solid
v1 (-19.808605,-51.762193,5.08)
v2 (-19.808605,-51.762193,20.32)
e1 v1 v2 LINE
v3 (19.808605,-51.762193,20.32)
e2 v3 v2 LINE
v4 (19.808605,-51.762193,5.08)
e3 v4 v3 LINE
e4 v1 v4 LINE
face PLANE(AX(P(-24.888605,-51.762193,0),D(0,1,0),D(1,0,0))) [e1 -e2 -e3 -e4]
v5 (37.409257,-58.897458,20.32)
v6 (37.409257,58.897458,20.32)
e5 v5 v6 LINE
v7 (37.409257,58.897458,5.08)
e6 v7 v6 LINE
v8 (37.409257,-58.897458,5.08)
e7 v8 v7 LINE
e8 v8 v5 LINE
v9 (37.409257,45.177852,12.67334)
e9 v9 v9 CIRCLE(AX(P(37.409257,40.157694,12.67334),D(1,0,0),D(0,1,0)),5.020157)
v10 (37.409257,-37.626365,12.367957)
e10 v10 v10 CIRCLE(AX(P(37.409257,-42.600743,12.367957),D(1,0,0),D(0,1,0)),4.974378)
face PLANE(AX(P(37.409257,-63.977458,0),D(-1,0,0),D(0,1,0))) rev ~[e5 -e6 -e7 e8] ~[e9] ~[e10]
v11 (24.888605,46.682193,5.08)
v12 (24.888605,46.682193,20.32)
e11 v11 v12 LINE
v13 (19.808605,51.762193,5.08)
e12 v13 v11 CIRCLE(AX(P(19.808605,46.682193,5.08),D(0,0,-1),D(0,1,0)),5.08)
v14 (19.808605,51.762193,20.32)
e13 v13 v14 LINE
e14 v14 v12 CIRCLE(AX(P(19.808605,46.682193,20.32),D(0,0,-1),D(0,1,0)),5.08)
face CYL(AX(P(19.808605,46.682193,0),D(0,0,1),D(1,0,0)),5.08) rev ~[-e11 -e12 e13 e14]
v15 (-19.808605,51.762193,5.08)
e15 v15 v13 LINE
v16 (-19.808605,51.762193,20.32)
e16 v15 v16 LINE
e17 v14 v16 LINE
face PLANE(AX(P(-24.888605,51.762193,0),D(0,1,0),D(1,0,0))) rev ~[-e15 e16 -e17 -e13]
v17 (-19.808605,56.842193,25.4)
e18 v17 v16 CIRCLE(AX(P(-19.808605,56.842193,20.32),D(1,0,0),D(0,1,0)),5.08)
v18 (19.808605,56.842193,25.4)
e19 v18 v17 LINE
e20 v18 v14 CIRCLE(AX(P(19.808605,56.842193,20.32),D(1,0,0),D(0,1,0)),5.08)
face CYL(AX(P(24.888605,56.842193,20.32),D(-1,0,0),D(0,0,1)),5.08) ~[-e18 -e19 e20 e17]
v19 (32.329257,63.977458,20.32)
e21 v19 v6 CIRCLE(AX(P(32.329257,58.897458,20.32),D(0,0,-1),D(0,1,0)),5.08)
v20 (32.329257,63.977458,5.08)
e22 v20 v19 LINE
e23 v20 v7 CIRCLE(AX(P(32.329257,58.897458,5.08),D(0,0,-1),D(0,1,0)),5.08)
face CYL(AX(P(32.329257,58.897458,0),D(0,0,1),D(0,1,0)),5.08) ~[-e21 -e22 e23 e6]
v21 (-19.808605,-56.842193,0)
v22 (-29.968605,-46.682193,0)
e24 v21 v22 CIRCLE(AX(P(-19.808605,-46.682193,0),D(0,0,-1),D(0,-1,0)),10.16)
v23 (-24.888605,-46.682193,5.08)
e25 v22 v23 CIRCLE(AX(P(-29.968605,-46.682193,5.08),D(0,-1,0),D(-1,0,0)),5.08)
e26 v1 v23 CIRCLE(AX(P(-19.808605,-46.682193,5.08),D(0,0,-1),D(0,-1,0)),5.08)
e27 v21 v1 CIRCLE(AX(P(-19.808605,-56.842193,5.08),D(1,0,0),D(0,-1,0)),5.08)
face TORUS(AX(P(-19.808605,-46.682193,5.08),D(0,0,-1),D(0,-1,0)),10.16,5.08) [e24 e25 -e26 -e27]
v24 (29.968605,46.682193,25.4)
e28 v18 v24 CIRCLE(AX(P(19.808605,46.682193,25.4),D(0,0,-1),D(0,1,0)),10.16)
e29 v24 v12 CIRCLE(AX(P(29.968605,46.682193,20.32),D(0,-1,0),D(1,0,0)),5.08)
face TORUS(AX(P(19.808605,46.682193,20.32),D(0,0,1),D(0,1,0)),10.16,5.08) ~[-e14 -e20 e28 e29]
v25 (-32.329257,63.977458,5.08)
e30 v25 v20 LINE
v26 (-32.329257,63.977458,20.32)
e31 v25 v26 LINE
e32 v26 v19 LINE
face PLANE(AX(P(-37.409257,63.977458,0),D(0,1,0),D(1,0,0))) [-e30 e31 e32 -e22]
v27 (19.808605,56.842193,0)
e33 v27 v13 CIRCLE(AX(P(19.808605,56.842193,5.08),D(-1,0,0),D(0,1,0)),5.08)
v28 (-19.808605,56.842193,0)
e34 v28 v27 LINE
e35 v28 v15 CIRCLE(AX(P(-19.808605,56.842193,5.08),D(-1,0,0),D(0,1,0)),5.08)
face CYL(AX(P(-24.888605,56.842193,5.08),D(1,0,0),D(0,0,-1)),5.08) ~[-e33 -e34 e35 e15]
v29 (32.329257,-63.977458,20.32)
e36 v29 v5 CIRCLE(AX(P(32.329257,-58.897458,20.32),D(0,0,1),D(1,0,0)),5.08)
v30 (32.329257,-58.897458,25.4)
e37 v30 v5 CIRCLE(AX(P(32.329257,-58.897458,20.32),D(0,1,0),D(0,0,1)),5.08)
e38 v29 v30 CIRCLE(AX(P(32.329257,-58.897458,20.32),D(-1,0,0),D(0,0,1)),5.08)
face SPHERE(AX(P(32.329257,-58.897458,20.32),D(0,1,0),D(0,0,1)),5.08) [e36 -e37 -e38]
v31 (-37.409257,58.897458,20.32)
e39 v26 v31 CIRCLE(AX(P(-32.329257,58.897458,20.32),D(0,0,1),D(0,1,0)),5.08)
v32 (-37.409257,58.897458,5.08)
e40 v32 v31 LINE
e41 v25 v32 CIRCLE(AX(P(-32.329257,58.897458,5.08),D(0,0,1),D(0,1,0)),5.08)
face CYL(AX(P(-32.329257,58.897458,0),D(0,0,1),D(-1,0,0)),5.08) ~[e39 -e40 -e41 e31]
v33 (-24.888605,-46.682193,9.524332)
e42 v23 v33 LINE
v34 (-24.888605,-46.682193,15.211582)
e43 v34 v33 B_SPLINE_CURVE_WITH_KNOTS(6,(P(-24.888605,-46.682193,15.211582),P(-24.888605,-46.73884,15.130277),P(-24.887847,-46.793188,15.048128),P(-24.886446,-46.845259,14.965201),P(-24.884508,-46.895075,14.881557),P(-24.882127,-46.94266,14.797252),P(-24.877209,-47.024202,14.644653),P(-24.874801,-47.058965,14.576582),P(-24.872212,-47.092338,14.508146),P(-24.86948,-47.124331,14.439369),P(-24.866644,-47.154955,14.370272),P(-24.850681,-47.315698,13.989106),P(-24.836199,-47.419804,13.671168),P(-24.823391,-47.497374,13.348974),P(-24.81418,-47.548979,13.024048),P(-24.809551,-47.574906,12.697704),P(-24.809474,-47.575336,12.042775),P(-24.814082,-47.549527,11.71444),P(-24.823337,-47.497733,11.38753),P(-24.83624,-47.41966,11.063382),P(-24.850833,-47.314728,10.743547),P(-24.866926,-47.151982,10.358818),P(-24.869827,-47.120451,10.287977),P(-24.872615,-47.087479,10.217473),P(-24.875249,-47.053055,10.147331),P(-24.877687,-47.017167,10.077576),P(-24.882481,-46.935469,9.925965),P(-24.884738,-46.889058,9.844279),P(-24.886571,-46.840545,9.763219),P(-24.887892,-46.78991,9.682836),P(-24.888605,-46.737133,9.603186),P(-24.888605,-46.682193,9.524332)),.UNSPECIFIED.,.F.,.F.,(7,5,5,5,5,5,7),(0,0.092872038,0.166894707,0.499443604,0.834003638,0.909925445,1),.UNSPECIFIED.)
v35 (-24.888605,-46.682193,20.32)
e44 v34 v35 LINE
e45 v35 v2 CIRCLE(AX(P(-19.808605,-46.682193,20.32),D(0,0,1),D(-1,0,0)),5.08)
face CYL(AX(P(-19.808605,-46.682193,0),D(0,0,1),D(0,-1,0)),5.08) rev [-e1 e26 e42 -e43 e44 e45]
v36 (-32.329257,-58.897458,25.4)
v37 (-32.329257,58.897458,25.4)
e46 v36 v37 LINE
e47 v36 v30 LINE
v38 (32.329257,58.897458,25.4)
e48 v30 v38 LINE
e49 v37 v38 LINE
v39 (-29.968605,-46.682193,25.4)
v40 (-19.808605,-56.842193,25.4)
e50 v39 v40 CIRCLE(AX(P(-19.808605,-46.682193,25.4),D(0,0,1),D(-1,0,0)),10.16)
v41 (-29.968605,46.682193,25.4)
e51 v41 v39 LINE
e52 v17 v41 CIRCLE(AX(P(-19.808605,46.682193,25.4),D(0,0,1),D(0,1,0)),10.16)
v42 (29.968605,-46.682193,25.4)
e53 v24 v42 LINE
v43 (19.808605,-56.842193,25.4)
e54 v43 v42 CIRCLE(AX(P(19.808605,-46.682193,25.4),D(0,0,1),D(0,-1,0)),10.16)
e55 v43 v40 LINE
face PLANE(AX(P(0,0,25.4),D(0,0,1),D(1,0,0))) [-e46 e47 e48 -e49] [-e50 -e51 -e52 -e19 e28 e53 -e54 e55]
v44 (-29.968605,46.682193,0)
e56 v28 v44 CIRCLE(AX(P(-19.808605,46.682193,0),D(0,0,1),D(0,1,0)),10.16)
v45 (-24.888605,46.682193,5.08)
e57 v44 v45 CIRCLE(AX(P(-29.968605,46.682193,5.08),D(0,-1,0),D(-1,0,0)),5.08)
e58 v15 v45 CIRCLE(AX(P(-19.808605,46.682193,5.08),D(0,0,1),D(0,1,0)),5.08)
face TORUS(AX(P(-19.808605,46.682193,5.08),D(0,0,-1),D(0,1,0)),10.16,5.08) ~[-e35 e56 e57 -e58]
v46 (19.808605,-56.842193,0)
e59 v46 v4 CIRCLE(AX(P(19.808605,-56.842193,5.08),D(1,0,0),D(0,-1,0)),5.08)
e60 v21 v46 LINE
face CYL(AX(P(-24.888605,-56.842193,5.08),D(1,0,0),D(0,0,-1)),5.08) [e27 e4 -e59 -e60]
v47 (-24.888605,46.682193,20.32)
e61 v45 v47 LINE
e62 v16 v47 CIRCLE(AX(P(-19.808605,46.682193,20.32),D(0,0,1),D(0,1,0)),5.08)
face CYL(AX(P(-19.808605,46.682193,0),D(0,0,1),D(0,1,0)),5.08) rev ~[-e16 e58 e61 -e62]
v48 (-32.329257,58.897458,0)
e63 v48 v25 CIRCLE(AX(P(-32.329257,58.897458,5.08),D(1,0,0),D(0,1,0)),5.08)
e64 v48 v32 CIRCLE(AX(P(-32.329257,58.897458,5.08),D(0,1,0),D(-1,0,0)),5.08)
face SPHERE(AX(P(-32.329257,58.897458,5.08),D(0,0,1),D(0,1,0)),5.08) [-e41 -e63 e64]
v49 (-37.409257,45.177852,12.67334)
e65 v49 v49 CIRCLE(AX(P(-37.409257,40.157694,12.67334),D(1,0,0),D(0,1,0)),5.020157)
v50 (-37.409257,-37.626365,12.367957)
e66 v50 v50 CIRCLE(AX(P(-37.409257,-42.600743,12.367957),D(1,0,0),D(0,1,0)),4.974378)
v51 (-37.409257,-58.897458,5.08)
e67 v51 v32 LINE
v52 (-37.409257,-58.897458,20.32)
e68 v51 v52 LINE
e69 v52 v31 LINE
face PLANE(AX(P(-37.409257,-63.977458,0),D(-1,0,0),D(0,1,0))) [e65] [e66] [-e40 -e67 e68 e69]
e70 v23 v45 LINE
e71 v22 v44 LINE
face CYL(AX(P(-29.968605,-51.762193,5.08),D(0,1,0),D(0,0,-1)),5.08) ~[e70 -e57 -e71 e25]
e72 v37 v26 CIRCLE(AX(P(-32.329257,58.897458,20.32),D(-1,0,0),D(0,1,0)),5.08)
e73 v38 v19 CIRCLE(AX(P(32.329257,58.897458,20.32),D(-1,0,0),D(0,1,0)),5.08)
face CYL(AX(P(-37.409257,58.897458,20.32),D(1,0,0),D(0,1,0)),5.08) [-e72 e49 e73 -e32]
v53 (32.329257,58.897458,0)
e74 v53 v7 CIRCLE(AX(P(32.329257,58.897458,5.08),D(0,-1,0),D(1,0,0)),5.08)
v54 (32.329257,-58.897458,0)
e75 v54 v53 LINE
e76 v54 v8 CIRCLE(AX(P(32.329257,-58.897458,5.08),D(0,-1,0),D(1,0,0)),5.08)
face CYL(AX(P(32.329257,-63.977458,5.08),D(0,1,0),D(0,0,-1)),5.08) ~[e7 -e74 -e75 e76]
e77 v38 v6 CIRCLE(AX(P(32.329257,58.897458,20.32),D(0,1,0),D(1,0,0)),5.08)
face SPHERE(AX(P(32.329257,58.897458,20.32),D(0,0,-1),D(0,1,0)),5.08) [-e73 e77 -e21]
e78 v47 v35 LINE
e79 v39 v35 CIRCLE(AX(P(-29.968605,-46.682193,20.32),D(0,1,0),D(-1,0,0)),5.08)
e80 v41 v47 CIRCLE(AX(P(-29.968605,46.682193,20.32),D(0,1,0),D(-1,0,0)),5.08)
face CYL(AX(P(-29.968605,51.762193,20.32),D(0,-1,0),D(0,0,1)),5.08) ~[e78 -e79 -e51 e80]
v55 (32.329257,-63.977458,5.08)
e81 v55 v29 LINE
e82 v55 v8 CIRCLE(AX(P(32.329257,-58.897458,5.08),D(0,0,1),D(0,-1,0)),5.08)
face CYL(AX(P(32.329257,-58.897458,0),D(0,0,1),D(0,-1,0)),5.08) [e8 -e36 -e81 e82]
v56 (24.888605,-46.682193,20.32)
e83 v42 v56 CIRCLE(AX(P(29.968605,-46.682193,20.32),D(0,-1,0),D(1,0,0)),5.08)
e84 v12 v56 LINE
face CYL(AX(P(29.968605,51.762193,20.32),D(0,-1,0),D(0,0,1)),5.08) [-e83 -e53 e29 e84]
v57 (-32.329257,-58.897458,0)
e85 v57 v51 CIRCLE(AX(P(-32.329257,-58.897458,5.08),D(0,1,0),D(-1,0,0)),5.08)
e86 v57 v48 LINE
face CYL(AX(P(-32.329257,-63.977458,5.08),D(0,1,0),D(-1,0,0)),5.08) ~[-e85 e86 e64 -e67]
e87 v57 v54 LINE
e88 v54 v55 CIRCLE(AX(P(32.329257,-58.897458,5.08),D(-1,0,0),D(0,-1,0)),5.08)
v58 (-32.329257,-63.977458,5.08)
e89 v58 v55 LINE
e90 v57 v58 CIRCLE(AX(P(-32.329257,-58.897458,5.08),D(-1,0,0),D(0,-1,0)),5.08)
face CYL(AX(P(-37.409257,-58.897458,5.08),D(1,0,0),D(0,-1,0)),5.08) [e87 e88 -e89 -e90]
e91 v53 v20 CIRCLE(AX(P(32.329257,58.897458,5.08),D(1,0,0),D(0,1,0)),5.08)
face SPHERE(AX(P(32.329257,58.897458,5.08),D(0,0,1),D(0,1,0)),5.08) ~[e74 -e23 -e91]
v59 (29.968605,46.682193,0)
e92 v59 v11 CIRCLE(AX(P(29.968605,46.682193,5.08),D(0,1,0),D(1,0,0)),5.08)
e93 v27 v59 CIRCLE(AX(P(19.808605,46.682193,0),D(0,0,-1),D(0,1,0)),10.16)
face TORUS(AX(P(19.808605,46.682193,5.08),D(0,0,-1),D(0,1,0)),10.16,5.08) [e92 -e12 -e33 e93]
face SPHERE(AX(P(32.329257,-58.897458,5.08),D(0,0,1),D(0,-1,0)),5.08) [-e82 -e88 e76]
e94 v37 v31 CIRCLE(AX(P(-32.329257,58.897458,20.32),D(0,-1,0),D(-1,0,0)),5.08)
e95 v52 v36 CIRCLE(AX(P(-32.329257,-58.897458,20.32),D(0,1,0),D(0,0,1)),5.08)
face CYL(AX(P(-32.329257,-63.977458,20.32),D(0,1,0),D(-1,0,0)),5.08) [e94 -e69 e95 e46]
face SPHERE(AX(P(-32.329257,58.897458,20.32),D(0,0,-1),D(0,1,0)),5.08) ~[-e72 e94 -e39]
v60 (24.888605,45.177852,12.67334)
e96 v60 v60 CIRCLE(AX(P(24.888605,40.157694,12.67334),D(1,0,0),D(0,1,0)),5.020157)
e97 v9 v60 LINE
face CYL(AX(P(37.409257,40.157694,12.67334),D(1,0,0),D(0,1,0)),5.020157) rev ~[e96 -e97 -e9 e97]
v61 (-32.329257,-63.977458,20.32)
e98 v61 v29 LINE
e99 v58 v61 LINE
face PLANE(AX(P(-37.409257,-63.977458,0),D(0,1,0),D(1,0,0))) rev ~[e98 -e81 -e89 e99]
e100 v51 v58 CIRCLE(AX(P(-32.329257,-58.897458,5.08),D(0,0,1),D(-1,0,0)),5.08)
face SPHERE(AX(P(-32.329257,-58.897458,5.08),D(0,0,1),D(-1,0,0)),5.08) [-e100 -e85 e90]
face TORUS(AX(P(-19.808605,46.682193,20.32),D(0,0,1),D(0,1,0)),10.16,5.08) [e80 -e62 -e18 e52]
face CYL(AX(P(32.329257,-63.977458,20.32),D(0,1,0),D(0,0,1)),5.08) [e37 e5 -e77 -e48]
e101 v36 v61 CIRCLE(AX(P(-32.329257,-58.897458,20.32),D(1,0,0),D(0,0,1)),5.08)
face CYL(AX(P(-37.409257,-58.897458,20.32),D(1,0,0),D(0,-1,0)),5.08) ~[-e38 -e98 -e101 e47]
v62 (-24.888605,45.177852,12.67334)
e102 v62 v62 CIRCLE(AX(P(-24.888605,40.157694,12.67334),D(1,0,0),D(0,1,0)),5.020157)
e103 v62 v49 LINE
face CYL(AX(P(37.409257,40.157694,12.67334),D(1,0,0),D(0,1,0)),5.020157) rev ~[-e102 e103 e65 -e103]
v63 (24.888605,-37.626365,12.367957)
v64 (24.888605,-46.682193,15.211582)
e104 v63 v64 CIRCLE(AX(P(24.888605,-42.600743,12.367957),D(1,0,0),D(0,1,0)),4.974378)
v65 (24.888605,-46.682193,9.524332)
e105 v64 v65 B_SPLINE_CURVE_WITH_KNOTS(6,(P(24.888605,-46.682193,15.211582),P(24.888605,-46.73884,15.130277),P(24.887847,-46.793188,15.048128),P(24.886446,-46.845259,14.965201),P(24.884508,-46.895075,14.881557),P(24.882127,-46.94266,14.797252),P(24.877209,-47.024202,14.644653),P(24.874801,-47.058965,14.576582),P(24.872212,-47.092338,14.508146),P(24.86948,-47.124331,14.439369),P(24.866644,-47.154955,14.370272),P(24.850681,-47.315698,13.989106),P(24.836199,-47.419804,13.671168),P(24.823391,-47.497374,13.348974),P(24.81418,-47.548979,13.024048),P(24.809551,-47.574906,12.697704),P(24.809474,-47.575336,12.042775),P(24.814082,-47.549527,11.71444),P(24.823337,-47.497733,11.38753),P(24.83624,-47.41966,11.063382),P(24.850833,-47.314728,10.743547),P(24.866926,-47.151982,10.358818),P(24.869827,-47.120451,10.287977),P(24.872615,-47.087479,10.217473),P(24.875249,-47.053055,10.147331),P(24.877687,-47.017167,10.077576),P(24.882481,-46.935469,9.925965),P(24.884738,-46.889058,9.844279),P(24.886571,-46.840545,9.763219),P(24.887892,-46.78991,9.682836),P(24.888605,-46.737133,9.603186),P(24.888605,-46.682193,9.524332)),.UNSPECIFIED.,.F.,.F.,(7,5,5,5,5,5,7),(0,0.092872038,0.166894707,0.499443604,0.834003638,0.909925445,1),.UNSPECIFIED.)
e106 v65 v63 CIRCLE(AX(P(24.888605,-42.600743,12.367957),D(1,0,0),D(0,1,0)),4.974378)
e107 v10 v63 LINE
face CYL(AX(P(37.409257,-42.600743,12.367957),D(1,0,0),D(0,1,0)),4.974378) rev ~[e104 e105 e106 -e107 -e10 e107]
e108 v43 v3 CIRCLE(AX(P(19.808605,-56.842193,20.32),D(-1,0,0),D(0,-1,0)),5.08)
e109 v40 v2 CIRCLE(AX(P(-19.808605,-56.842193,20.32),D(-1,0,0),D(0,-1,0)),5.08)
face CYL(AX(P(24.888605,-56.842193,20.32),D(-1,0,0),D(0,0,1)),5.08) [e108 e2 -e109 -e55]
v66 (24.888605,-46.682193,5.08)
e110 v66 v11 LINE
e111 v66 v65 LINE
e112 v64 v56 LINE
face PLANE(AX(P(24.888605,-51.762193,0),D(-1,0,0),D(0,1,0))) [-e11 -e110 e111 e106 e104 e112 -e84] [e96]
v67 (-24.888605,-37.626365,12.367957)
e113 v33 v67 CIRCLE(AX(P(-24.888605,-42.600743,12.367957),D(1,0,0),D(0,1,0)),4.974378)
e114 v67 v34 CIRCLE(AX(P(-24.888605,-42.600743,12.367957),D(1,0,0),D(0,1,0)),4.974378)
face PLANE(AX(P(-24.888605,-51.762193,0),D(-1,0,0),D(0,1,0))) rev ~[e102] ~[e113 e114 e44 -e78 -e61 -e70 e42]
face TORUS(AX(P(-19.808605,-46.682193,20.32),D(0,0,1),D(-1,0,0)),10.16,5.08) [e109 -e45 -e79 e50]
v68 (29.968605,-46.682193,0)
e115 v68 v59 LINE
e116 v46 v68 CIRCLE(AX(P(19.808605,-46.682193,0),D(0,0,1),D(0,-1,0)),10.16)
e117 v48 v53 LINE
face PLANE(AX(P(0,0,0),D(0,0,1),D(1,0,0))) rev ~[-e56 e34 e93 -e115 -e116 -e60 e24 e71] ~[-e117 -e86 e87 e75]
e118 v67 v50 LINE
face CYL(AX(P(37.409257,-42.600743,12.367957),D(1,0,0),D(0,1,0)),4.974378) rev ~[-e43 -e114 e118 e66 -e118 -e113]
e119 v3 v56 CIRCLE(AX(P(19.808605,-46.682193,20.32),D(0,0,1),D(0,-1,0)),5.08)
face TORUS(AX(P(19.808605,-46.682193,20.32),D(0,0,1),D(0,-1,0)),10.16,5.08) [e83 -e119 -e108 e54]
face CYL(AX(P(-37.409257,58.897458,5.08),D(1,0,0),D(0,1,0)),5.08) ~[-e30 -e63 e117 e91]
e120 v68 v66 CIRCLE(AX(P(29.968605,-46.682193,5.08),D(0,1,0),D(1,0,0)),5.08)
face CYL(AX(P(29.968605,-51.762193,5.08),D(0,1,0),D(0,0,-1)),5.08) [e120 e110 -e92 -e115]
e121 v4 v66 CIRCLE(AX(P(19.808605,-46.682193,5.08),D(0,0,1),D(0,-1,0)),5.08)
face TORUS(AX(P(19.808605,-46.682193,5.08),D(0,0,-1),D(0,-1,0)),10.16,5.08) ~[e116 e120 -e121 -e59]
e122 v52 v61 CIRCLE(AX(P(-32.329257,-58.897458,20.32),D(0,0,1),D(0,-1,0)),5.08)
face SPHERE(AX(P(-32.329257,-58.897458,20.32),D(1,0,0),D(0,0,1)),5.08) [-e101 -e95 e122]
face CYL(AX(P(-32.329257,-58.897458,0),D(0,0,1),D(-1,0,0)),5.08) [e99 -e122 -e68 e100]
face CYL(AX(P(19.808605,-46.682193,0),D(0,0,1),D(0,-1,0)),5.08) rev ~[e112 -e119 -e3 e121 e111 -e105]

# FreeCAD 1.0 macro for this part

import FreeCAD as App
import Part
import Sketcher

V = App.Vector
Q = App.Units.Quantity


def add_polygon(sketch, points):
    """Adds a closed chain of lines whose ends are joined by coincident constraints."""
    first, n = sketch.GeometryCount, len(points)
    for a, b in zip(points, points[1:] + points[:1]):
        sketch.addGeometry(Part.LineSegment(App.Vector(*a, 0), App.Vector(*b, 0)), False)
    for i in range(n):
        sketch.addConstraint(Sketcher.Constraint("Coincident", first + i, 2, first + (i + 1) % n, 1))

doc = App.newDocument("Part")
body = doc.addObject("PartDesign::Body", "Body")

sketch1 = body.newObject("Sketcher::SketchObject", "Sketch")
sketch1.AttachmentSupport = (doc.getObject("XY_Plane"), [""])
sketch1.MapMode = "FlatFace"
add_polygon(sketch1, [(-37, 64), (-37, -64), (37, -64), (37, 64)])
sketch1.addConstraint([
    Sketcher.Constraint("Vertical", 0),
    Sketcher.Constraint("Horizontal", 1),
    Sketcher.Constraint("Vertical", 2),
    Sketcher.Constraint("Horizontal", 3),
    Sketcher.Constraint("Symmetric", 0, 2, 2, 2, -1, 1),
    Sketcher.Constraint("DistanceX", 1, 1, 1, 2, 74.818514),
    Sketcher.Constraint("DistanceY", 0, 2, 0, 1, 127.954915),
])
pad1 = body.newObject("PartDesign::Pad", "Pad")
pad1.Profile = sketch1
pad1.Length = Q("1 in")

sketch2 = body.newObject("Sketcher::SketchObject", "Sketch001")
sketch2.AttachmentSupport = (doc.getObject("XY_Plane"), [""])
sketch2.MapMode = "FlatFace"
add_polygon(sketch2, [(-25, 52), (-25, -52), (25, -52), (25, 52)])
sketch2.addConstraint([
    Sketcher.Constraint("Vertical", 0),
    Sketcher.Constraint("Horizontal", 1),
    Sketcher.Constraint("Vertical", 2),
    Sketcher.Constraint("Horizontal", 3),
    Sketcher.Constraint("Symmetric", 0, 2, 2, 2, -1, 1),
    Sketcher.Constraint("DistanceX", 1, 1, 1, 2, 49.77721),
    Sketcher.Constraint("DistanceY", 0, 2, 0, 1, 103.524387),
])
pocket1 = body.newObject("PartDesign::Pocket", "Pocket")
pocket1.Profile = sketch2
pocket1.Length = Q("1.5 in")
pocket1.Reversed = True
doc.recompute()

fillet = body.newObject("PartDesign::Fillet", "Fillet")
fillet.Base = (pocket1, ["Edge1"])
fillet.UseAllEdges = True
fillet.Radius = Q("0.2 in")

sketch3 = body.newObject("Sketcher::SketchObject", "Sketch002")
sketch3.AttachmentSupport = (doc.getObject("YZ_Plane"), [""])
sketch3.MapMode = "FlatFace"
sketch3.AttachmentOffset = App.Placement(V(0, 0, 37.409257), App.Rotation())
sketch3.addGeometry(Part.Circle(V(-42.6, 12.4, 0), V(0, 0, 1), 5), False)
sketch3.addConstraint([
    Sketcher.Constraint("Diameter", 0, 9.948756),
    Sketcher.Constraint("DistanceX", 0, 3, -1, 1, 42.600743),
    Sketcher.Constraint("DistanceY", -1, 1, 0, 3, 12.367957),
])
pocket2 = body.newObject("PartDesign::Pocket", "Pocket001")
pocket2.Profile = sketch3
pocket2.Length = Q("5 in")

sketch4 = body.newObject("Sketcher::SketchObject", "Sketch003")
sketch4.AttachmentSupport = (doc.getObject("YZ_Plane"), [""])
sketch4.MapMode = "FlatFace"
sketch4.AttachmentOffset = App.Placement(V(0, 0, 37.409257), App.Rotation())
sketch4.addGeometry(Part.Circle(V(40, 13, 0), V(0, 0, 1), 5), False)
sketch4.addConstraint([
    Sketcher.Constraint("Diameter", 0, 10.040314),
    Sketcher.Constraint("DistanceY", -1, 1, 0, 3, 12.67334),
    Sketcher.Constraint("DistanceX", -1, 1, 0, 3, 40.157694),
])
pocket3 = body.newObject("PartDesign::Pocket", "Pocket002")
pocket3.Profile = sketch4
pocket3.Length = Q("5 in")

doc.recompute()
